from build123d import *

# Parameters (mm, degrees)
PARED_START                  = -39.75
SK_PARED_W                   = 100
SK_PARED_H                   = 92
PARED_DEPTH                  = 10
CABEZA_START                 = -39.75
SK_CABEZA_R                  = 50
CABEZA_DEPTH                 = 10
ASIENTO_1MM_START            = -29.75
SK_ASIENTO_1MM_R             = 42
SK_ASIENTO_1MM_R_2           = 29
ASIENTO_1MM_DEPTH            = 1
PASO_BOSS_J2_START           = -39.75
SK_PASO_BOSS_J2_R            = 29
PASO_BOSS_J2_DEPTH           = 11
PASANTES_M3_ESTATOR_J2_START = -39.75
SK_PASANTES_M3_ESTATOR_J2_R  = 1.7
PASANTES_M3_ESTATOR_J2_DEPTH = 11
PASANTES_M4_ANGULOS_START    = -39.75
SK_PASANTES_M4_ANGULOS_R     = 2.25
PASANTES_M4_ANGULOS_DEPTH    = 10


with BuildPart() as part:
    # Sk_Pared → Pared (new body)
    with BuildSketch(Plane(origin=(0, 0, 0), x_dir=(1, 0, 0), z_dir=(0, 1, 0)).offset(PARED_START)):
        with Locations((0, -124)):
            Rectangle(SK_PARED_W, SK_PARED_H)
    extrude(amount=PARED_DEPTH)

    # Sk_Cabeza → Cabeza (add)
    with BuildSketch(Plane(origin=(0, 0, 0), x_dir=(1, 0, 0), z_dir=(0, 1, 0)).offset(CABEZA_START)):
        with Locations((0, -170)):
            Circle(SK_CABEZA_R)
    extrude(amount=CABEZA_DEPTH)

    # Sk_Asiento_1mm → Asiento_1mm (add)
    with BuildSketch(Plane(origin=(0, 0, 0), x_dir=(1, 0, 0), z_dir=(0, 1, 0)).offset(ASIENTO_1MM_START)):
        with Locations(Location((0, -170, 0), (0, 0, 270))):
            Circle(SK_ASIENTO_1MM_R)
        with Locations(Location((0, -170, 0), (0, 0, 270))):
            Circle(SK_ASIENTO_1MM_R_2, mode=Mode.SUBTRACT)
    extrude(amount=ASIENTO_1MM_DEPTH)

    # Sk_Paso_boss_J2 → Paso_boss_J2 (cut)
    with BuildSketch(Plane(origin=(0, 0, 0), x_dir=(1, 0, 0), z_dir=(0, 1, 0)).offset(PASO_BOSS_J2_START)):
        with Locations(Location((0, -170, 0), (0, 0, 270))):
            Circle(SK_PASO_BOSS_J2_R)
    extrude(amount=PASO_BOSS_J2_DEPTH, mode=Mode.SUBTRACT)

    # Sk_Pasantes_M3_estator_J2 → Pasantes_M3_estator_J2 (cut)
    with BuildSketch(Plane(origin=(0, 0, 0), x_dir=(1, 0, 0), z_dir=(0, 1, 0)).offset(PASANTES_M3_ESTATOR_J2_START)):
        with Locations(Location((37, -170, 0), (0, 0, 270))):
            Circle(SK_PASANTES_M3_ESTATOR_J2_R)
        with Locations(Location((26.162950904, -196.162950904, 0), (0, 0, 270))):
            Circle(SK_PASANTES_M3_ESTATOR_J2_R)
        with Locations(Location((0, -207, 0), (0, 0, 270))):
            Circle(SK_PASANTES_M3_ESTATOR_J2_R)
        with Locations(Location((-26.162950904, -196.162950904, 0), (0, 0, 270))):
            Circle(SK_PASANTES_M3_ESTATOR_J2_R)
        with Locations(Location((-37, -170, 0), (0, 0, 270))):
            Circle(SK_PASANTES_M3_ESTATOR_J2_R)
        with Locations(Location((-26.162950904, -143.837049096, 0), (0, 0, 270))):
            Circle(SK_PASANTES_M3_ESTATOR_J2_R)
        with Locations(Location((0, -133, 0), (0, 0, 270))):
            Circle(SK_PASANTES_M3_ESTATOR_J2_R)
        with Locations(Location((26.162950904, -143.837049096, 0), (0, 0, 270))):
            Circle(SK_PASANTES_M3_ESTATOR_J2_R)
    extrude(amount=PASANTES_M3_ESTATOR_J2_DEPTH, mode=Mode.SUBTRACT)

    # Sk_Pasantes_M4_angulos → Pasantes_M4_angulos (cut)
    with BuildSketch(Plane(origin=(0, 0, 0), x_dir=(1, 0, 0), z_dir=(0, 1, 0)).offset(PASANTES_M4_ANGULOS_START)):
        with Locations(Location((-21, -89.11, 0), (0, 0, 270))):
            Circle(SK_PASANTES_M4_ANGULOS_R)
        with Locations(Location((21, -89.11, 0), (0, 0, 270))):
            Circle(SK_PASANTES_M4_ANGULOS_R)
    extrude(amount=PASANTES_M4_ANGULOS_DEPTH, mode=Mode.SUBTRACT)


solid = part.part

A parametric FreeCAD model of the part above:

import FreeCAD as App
import Part
import Sketcher
from FreeCAD import Vector
Q = App.Units.Quantity

doc = App.newDocument("Part")
body = doc.addObject("PartDesign::Body", "Body")

# Sketch on XZ plane
sketch1 = body.newObject("Sketcher::SketchObject", "Sketch")
sketch1.AttachmentSupport = (doc.getObject("XZ_Plane"), [""])
sketch1.MapMode = "FlatFace"
sketch1.AttachmentOffset = App.Placement(Vector(0, 0, 39.75), App.Rotation())
sketch1.addGeometry(Part.LineSegment(Vector(-50, 78, 0), Vector(-50, 170, 0)), False)
sketch1.addGeometry(Part.LineSegment(Vector(-50, 170, 0), Vector(50, 170, 0)), False)
sketch1.addGeometry(Part.LineSegment(Vector(50, 170, 0), Vector(50, 78, 0)), False)
sketch1.addGeometry(Part.LineSegment(Vector(50, 78, 0), Vector(-50, 78, 0)), False)
sketch1.addConstraint(Sketcher.Constraint("Coincident", 0, 2, 1, 1))
sketch1.addConstraint(Sketcher.Constraint("Coincident", 1, 2, 2, 1))
sketch1.addConstraint(Sketcher.Constraint("Coincident", 2, 2, 3, 1))
sketch1.addConstraint(Sketcher.Constraint("Coincident", 3, 2, 0, 1))
sketch1.addConstraint(Sketcher.Constraint("Vertical", 0))
sketch1.addConstraint(Sketcher.Constraint("Horizontal", 1))
sketch1.addConstraint(Sketcher.Constraint("Vertical", 2))
sketch1.addConstraint(Sketcher.Constraint("Horizontal", 3))
sketch1.addConstraint(Sketcher.Constraint("DistanceX", 1, 1, 1, 2, Q("100 mm")))
sketch1.addConstraint(Sketcher.Constraint("DistanceY", 0, 1, 0, 2, Q("92 mm")))
sketch1.addConstraint(Sketcher.Constraint("DistanceX", 0, 2, -1, 1, Q("50 mm")))
sketch1.addConstraint(Sketcher.Constraint("DistanceY", -1, 1, 0, 2, Q("170 mm")))
pad1 = body.newObject("PartDesign::Pad", "Pad")
pad1.Profile = sketch1
pad1.Length = 10
pad1.Reversed = True

# Sketch on XZ plane
sketch2 = body.newObject("Sketcher::SketchObject", "Sketch001")
sketch2.AttachmentSupport = (doc.getObject("XZ_Plane"), [""])
sketch2.MapMode = "FlatFace"
sketch2.AttachmentOffset = App.Placement(Vector(0, 0, 39.75), App.Rotation())
sketch2.addGeometry(Part.Circle(Vector(0, 170, 0), Vector(0, 0, 1), 50), False)
sketch2.addConstraint(Sketcher.Constraint("PointOnObject", 0, 3, -2))
sketch2.addConstraint(Sketcher.Constraint("Diameter", 0, Q("100 mm")))
sketch2.addConstraint(Sketcher.Constraint("DistanceY", -1, 1, 0, 3, Q("170 mm")))
pad2 = body.newObject("PartDesign::Pad", "Pad001")
pad2.Profile = sketch2
pad2.Length = 10
pad2.Reversed = True

# Sketch on XZ plane
sketch3 = body.newObject("Sketcher::SketchObject", "Sketch002")
sketch3.AttachmentSupport = (doc.getObject("XZ_Plane"), [""])
sketch3.MapMode = "FlatFace"
sketch3.AttachmentOffset = App.Placement(Vector(0, 0, 29.75), App.Rotation())
sketch3.addGeometry(Part.Circle(Vector(0, 170, 0), Vector(0, 0, 1), 42), False)
sketch3.addGeometry(Part.Circle(Vector(0, 170, 0), Vector(0, 0, 1), 29), False)
sketch3.addConstraint(Sketcher.Constraint("Coincident", 1, 3, 0, 3))
sketch3.addConstraint(Sketcher.Constraint("PointOnObject", 0, 3, -2))
sketch3.addConstraint(Sketcher.Constraint("Diameter", 0, Q("84 mm")))
sketch3.addConstraint(Sketcher.Constraint("Diameter", 1, Q("58 mm")))
sketch3.addConstraint(Sketcher.Constraint("DistanceY", -1, 1, 0, 3, Q("170 mm")))
pad3 = body.newObject("PartDesign::Pad", "Pad002")
pad3.Profile = sketch3
pad3.Length = 1
pad3.Reversed = True

# Sketch on XZ plane
sketch4 = body.newObject("Sketcher::SketchObject", "Sketch003")
sketch4.AttachmentSupport = (doc.getObject("XZ_Plane"), [""])
sketch4.MapMode = "FlatFace"
sketch4.AttachmentOffset = App.Placement(Vector(0, 0, 39.75), App.Rotation())
sketch4.addGeometry(Part.Circle(Vector(0, 170, 0), Vector(0, 0, 1), 29), False)
sketch4.addConstraint(Sketcher.Constraint("PointOnObject", 0, 3, -2))
sketch4.addConstraint(Sketcher.Constraint("Diameter", 0, Q("58 mm")))
sketch4.addConstraint(Sketcher.Constraint("DistanceY", -1, 1, 0, 3, Q("170 mm")))
pocket1 = body.newObject("PartDesign::Pocket", "Pocket")
pocket1.Profile = sketch4
pocket1.Length = 11

# Sketch on XZ plane
sketch5 = body.newObject("Sketcher::SketchObject", "Sketch004")
sketch5.AttachmentSupport = (doc.getObject("XZ_Plane"), [""])
sketch5.MapMode = "FlatFace"
sketch5.AttachmentOffset = App.Placement(Vector(0, 0, 39.75), App.Rotation())
sketch5.addGeometry(Part.Circle(Vector(37, 170, 0), Vector(0, 0, 1), 1.7), False)
sketch5.addGeometry(Part.Circle(Vector(26.162951, 196.162951, 0), Vector(0, 0, 1), 1.7), False)
sketch5.addGeometry(Part.Circle(Vector(0, 207, 0), Vector(0, 0, 1), 1.7), False)
sketch5.addGeometry(Part.Circle(Vector(-26.162951, 196.162951, 0), Vector(0, 0, 1), 1.7), False)
sketch5.addGeometry(Part.Circle(Vector(-37, 170, 0), Vector(0, 0, 1), 1.7), False)
sketch5.addGeometry(Part.Circle(Vector(-26.162951, 143.837049, 0), Vector(0, 0, 1), 1.7), False)
sketch5.addGeometry(Part.Circle(Vector(0, 133, 0), Vector(0, 0, 1), 1.7), False)
sketch5.addGeometry(Part.Circle(Vector(26.162951, 143.837049, 0), Vector(0, 0, 1), 1.7), False)
sketch5.addConstraint(Sketcher.Constraint("Equal", 0, 1))
sketch5.addConstraint(Sketcher.Constraint("Equal", 1, 2))
sketch5.addConstraint(Sketcher.Constraint("Equal", 2, 3))
sketch5.addConstraint(Sketcher.Constraint("Equal", 3, 4))
sketch5.addConstraint(Sketcher.Constraint("Equal", 4, 5))
sketch5.addConstraint(Sketcher.Constraint("Equal", 5, 6))
sketch5.addConstraint(Sketcher.Constraint("Equal", 6, 7))
sketch5.addConstraint(Sketcher.Constraint("Symmetric", 1, 3, 3, 3, -2))
sketch5.addConstraint(Sketcher.Constraint("Symmetric", 0, 3, 4, 3, -2))
sketch5.addConstraint(Sketcher.Constraint("Symmetric", 5, 3, 7, 3, -2))
sketch5.addConstraint(Sketcher.Constraint("PointOnObject", 2, 3, -2))
sketch5.addConstraint(Sketcher.Constraint("PointOnObject", 6, 3, -2))
sketch5.addConstraint(Sketcher.Constraint("Vertical", 3, 3, 5, 3))
sketch5.addConstraint(Sketcher.Constraint("Diameter", 0, Q("3.4 mm")))
sketch5.addConstraint(Sketcher.Constraint("DistanceX", -1, 1, 0, 3, Q("37 mm")))
sketch5.addConstraint(Sketcher.Constraint("DistanceY", -1, 1, 0, 3, Q("170 mm")))
sketch5.addConstraint(Sketcher.Constraint("DistanceY", -1, 1, 2, 3, Q("207 mm")))
sketch5.addConstraint(Sketcher.Constraint("DistanceY", -1, 1, 6, 3, Q("133 mm")))
sketch5.addConstraint(Sketcher.Constraint("DistanceX", 3, 3, 1, 3, Q("52.325902 mm")))
sketch5.addConstraint(Sketcher.Constraint("DistanceY", 5, 3, 3, 3, Q("52.325902 mm")))
sketch5.addConstraint(Sketcher.Constraint("DistanceY", -1, 1, 1, 3, Q("196.162951 mm")))
pocket2 = body.newObject("PartDesign::Pocket", "Pocket001")
pocket2.Profile = sketch5
pocket2.Length = 11

# Sketch on XZ plane
sketch6 = body.newObject("Sketcher::SketchObject", "Sketch005")
sketch6.AttachmentSupport = (doc.getObject("XZ_Plane"), [""])
sketch6.MapMode = "FlatFace"
sketch6.AttachmentOffset = App.Placement(Vector(0, 0, 39.75), App.Rotation())
sketch6.addGeometry(Part.Circle(Vector(-21, 89.11, 0), Vector(0, 0, 1), 2.25), False)
sketch6.addGeometry(Part.Circle(Vector(21, 89.11, 0), Vector(0, 0, 1), 2.25), False)
sketch6.addConstraint(Sketcher.Constraint("Equal", 0, 1))
sketch6.addConstraint(Sketcher.Constraint("Symmetric", 0, 3, 1, 3, -2))
sketch6.addConstraint(Sketcher.Constraint("Diameter", 0, Q("4.5 mm")))
sketch6.addConstraint(Sketcher.Constraint("DistanceX", 0, 3, -1, 1, Q("21 mm")))
sketch6.addConstraint(Sketcher.Constraint("DistanceY", -1, 1, 0, 3, Q("89.11 mm")))
pocket3 = body.newObject("PartDesign::Pocket", "Pocket002")
pocket3.Profile = sketch6
pocket3.Length = 10

doc.recompute()
